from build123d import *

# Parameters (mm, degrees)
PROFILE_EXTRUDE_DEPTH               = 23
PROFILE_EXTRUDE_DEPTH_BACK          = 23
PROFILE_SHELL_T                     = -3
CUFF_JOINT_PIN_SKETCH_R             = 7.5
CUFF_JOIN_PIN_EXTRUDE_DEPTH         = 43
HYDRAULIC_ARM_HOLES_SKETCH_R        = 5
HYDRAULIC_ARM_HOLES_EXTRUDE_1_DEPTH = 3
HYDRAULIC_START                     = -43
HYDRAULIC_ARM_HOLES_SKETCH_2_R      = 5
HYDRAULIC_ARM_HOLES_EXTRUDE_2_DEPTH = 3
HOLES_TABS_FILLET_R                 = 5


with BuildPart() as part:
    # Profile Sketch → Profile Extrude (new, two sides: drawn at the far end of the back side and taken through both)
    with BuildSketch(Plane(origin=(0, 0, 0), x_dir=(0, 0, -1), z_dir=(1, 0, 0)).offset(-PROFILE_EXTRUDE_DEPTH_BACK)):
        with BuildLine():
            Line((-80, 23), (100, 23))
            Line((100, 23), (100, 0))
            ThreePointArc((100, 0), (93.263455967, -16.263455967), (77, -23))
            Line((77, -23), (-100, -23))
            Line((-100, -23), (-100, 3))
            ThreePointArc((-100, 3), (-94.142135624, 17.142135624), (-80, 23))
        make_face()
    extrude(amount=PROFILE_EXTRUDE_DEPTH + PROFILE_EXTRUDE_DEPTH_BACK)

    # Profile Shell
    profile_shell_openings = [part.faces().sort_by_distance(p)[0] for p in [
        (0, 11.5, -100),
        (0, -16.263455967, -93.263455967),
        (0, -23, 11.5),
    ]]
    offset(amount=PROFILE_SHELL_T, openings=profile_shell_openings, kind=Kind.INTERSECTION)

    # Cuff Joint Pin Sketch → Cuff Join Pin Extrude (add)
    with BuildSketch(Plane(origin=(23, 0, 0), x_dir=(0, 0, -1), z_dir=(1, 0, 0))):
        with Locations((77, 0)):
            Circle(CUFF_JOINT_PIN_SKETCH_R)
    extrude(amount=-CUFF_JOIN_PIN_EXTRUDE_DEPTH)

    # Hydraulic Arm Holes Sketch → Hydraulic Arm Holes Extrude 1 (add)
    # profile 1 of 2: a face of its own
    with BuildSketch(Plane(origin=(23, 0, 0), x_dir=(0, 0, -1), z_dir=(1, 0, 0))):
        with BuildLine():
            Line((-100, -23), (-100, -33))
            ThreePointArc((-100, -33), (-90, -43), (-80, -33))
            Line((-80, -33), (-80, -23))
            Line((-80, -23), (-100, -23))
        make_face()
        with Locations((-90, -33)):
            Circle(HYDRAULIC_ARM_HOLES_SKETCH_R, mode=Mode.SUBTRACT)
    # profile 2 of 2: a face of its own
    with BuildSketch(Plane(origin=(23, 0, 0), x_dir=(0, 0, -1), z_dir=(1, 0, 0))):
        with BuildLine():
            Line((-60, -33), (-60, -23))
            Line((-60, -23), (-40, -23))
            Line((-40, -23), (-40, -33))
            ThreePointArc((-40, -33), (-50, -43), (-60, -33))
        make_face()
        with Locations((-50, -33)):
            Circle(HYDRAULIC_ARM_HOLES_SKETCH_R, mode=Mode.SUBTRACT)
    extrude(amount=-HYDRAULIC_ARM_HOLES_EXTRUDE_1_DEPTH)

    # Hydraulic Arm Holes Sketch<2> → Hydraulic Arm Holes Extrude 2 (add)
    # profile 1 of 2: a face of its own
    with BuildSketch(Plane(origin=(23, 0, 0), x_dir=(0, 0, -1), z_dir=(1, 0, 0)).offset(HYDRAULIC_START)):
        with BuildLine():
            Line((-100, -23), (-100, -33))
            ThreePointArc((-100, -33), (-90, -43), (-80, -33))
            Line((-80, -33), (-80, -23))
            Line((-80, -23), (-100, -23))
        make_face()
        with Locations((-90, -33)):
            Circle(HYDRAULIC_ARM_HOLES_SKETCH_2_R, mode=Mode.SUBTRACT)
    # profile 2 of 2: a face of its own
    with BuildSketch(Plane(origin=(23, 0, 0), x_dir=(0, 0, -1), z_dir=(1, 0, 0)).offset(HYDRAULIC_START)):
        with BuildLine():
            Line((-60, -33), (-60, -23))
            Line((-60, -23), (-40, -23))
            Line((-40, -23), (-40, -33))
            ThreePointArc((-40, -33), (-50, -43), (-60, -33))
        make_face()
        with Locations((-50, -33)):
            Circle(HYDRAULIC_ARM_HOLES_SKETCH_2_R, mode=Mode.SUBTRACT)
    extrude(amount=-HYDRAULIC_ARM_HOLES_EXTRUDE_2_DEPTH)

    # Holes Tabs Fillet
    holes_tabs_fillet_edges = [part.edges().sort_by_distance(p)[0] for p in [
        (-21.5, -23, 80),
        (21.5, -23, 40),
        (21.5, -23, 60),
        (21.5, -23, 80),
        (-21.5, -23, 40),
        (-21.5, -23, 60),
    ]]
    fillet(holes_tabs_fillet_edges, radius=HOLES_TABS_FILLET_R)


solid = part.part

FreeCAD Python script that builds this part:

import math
import FreeCAD as App
import Part
import Sketcher


def edges_at(feature, points):
    """Names of the edges that pass closest to the given points."""
    edges = feature.Shape.Edges
    near = lambda p: min(range(len(edges)), key=lambda i: edges[i].distToShape(Part.Vertex(*p))[0])
    return sorted({f"Edge{near(p) + 1}" for p in points})


def faces_at(feature, points):
    """Names of the faces that lie closest to the given points."""
    faces = feature.Shape.Faces
    near = lambda p: min(range(len(faces)), key=lambda i: faces[i].distToShape(Part.Vertex(*p))[0])
    return sorted({f"Face{near(p) + 1}" for p in points})

doc = App.newDocument("Part")
params = doc.addObject("Spreadsheet::Sheet", "Params")
for row, (alias, value) in enumerate([
    ("sketch1_radius", "20 mm"),
    ("sketch1_radius2", "23 mm"),
    ("sketch1_height", "180 mm"),
    ("pad1_length", "23 mm"),
    ("pad1_length2", "23 mm"),
    ("thickness_wall", "3 mm"),
    ("sketch2_diameter", "15 mm"),
    ("pad2_length", "43 mm"),
    ("sketch3_diameter", "10 mm"),
    ("sketch3_radius", "10 mm"),
    ("sketch3_width", "10 mm"),
    ("pad3_length", "3 mm"),
    ("sketch4_diameter", "10 mm"),
    ("sketch4_radius", "10 mm"),
    ("sketch4_width", "10 mm"),
    ("pad4_length", "3 mm"),
    ("fillet_radius", "5 mm"),
], start=1):
    params.set(f"A{row}", alias)
    params.set(f"B{row}", "=" + value)
    params.setAlias(f"B{row}", alias)

body = doc.addObject("PartDesign::Body", "Body")

sketch1 = body.newObject("Sketcher::SketchObject", "Sketch")
sketch1.AttachmentSupport = (doc.getObject("YZ_Plane"), [""])
sketch1.MapMode = "FlatFace"
sketch1.addGeometry([
    Part.LineSegment(App.Vector(23, -100, 0), App.Vector(23, 80, 0)),
    Part.ArcOfCircle(Part.Circle(App.Vector(3, 80, 0), App.Vector(0, 0, 1), 20), math.radians(0), math.radians(90)),
    Part.LineSegment(App.Vector(3, 100, 0), App.Vector(-23, 100, 0)),
    Part.LineSegment(App.Vector(-23, 100, 0), App.Vector(-23, -77, 0)),
    Part.ArcOfCircle(Part.Circle(App.Vector(0, -77, 0), App.Vector(0, 0, 1), 23), math.radians(-180), math.radians(-90)),
    Part.LineSegment(App.Vector(0, -100, 0), App.Vector(23, -100, 0)),
], False)
sketch1.addConstraint([
    Sketcher.Constraint("Tangent", 0, 2, 1, 1),
    Sketcher.Constraint("Tangent", 1, 2, 2, 1),
    Sketcher.Constraint("Coincident", 2, 2, 3, 1),
    Sketcher.Constraint("Tangent", 3, 2, 4, 1),
    Sketcher.Constraint("Tangent", 4, 2, 5, 1),
    Sketcher.Constraint("Coincident", 5, 2, 0, 1),
    Sketcher.Constraint("Vertical", 0),
    Sketcher.Constraint("Horizontal", 2),
    Sketcher.Constraint("Vertical", 3),
    Sketcher.Constraint("Horizontal", 5),
    Sketcher.Constraint("Symmetric", 2, 2, 5, 2, -1, 1),
    Sketcher.Constraint("PointOnObject", 4, 3, -2),
    Sketcher.Constraint("Radius", 1, 20.0),
    Sketcher.Constraint("Radius", 4, 23.0),
    Sketcher.Constraint("DistanceY", 0, 1, 0, 2, 180.0),
])
sketch1.setExpression("Constraints[12]", "Params.sketch1_radius")
sketch1.setExpression("Constraints[13]", "Params.sketch1_radius2")
sketch1.setExpression("Constraints[14]", "Params.sketch1_height")
pad1 = body.newObject("PartDesign::Pad", "Pad")
pad1.Profile = sketch1
pad1.Type = "TwoLengths"
pad1.setExpression("Length", "Params.pad1_length")
pad1.setExpression("Length2", "Params.pad1_length2")
doc.recompute()

thickness = body.newObject("PartDesign::Thickness", "Thickness")
thickness.Base = (pad1, faces_at(pad1, [(0, 11.5, -100), (0, -16.263, -93.263), (0, -23, 11.5)]))
thickness.setExpression("Value", "Params.thickness_wall")
thickness.Reversed = True
thickness.Join = "Intersection"

sketch2 = body.newObject("Sketcher::SketchObject", "Sketch001")
sketch2.AttachmentSupport = (doc.getObject("YZ_Plane"), [""])
sketch2.MapMode = "FlatFace"
sketch2.AttachmentOffset = App.Placement(App.Vector(0, 0, 23), App.Rotation())
sketch2.addGeometry(Part.Circle(App.Vector(0, -77, 0), App.Vector(0, 0, 1), 8), False)
sketch2.addConstraint([
    Sketcher.Constraint("PointOnObject", 0, 3, -2),
    Sketcher.Constraint("Diameter", 0, 15.0),
    Sketcher.Constraint("DistanceY", 0, 3, -1, 1, 77.0),
])
sketch2.setExpression("Constraints[1]", "Params.sketch2_diameter")
pad2 = body.newObject("PartDesign::Pad", "Pad001")
pad2.Profile = sketch2
pad2.setExpression("Length", "Params.pad2_length")
pad2.Reversed = True

sketch3 = body.newObject("Sketcher::SketchObject", "Sketch002")
sketch3.AttachmentSupport = (doc.getObject("YZ_Plane"), [""])
sketch3.MapMode = "FlatFace"
sketch3.AttachmentOffset = App.Placement(App.Vector(0, 0, 23), App.Rotation())
sketch3.addGeometry([
    Part.LineSegment(App.Vector(-23, 100, 0), App.Vector(-33, 100, 0)),
    Part.ArcOfCircle(Part.Circle(App.Vector(-33, 90, 0), App.Vector(0, 0, 1), 10), math.radians(90), math.radians(270)),
    Part.LineSegment(App.Vector(-33, 80, 0), App.Vector(-23, 80, 0)),
    Part.LineSegment(App.Vector(-23, 80, 0), App.Vector(-23, 100, 0)),
    Part.Circle(App.Vector(-33, 90, 0), App.Vector(0, 0, 1), 5),
    Part.LineSegment(App.Vector(-23, 60, 0), App.Vector(-33, 60, 0)),
    Part.ArcOfCircle(Part.Circle(App.Vector(-33, 50, 0), App.Vector(0, 0, 1), 10), math.radians(90), math.radians(270)),
    Part.LineSegment(App.Vector(-33, 40, 0), App.Vector(-23, 40, 0)),
    Part.LineSegment(App.Vector(-23, 40, 0), App.Vector(-23, 60, 0)),
    Part.Circle(App.Vector(-33, 50, 0), App.Vector(0, 0, 1), 5),
], False)
sketch3.addConstraint([
    Sketcher.Constraint("Tangent", 0, 2, 1, 1),
    Sketcher.Constraint("Tangent", 1, 2, 2, 1),
    Sketcher.Constraint("Coincident", 2, 2, 3, 1),
    Sketcher.Constraint("Coincident", 3, 2, 0, 1),
    Sketcher.Constraint("Tangent", 5, 2, 6, 1),
    Sketcher.Constraint("Tangent", 6, 2, 7, 1),
    Sketcher.Constraint("Coincident", 7, 2, 8, 1),
    Sketcher.Constraint("Coincident", 8, 2, 5, 1),
    Sketcher.Constraint("Horizontal", 0),
    Sketcher.Constraint("Horizontal", 2),
    Sketcher.Constraint("Vertical", 3),
    Sketcher.Constraint("Horizontal", 5),
    Sketcher.Constraint("Horizontal", 7),
    Sketcher.Constraint("Vertical", 8),
    Sketcher.Constraint("Coincident", 4, 3, 1, 3),
    Sketcher.Constraint("Coincident", 9, 3, 6, 3),
    Sketcher.Constraint("Equal", 1, 6),
    Sketcher.Constraint("Equal", 4, 9),
    Sketcher.Constraint("Vertical", 4, 3, 6, 3),
    Sketcher.Constraint("Vertical", 3, 2, 7, 2),
    Sketcher.Constraint("Diameter", 4, 10.0),
    Sketcher.Constraint("Radius", 1, 10.0),
    Sketcher.Constraint("DistanceX", 0, 2, 0, 1, 10.0),
    Sketcher.Constraint("DistanceX", 1, 3, -1, 1, 33.0),
    Sketcher.Constraint("DistanceY", -1, 1, 1, 3, 90.0),
    Sketcher.Constraint("DistanceY", -1, 1, 6, 3, 50.0),
])
sketch3.setExpression("Constraints[20]", "Params.sketch3_diameter")
sketch3.setExpression("Constraints[21]", "Params.sketch3_radius")
sketch3.setExpression("Constraints[22]", "Params.sketch3_width")
pad3 = body.newObject("PartDesign::Pad", "Pad002")
pad3.Profile = sketch3
pad3.setExpression("Length", "Params.pad3_length")
pad3.Reversed = True

sketch4 = body.newObject("Sketcher::SketchObject", "Sketch003")
sketch4.AttachmentSupport = (doc.getObject("YZ_Plane"), [""])
sketch4.MapMode = "FlatFace"
sketch4.AttachmentOffset = App.Placement(App.Vector(0, 0, -20), App.Rotation())
sketch4.addGeometry([
    Part.LineSegment(App.Vector(-23, 100, 0), App.Vector(-33, 100, 0)),
    Part.ArcOfCircle(Part.Circle(App.Vector(-33, 90, 0), App.Vector(0, 0, 1), 10), math.radians(90), math.radians(270)),
    Part.LineSegment(App.Vector(-33, 80, 0), App.Vector(-23, 80, 0)),
    Part.LineSegment(App.Vector(-23, 80, 0), App.Vector(-23, 100, 0)),
    Part.Circle(App.Vector(-33, 90, 0), App.Vector(0, 0, 1), 5),
    Part.LineSegment(App.Vector(-23, 60, 0), App.Vector(-33, 60, 0)),
    Part.ArcOfCircle(Part.Circle(App.Vector(-33, 50, 0), App.Vector(0, 0, 1), 10), math.radians(90), math.radians(270)),
    Part.LineSegment(App.Vector(-33, 40, 0), App.Vector(-23, 40, 0)),
    Part.LineSegment(App.Vector(-23, 40, 0), App.Vector(-23, 60, 0)),
    Part.Circle(App.Vector(-33, 50, 0), App.Vector(0, 0, 1), 5),
], False)
sketch4.addConstraint([
    Sketcher.Constraint("Tangent", 0, 2, 1, 1),
    Sketcher.Constraint("Tangent", 1, 2, 2, 1),
    Sketcher.Constraint("Coincident", 2, 2, 3, 1),
    Sketcher.Constraint("Coincident", 3, 2, 0, 1),
    Sketcher.Constraint("Tangent", 5, 2, 6, 1),
    Sketcher.Constraint("Tangent", 6, 2, 7, 1),
    Sketcher.Constraint("Coincident", 7, 2, 8, 1),
    Sketcher.Constraint("Coincident", 8, 2, 5, 1),
    Sketcher.Constraint("Horizontal", 0),
    Sketcher.Constraint("Horizontal", 2),
    Sketcher.Constraint("Vertical", 3),
    Sketcher.Constraint("Horizontal", 5),
    Sketcher.Constraint("Horizontal", 7),
    Sketcher.Constraint("Vertical", 8),
    Sketcher.Constraint("Coincident", 4, 3, 1, 3),
    Sketcher.Constraint("Coincident", 9, 3, 6, 3),
    Sketcher.Constraint("Equal", 1, 6),
    Sketcher.Constraint("Equal", 4, 9),
    Sketcher.Constraint("Vertical", 4, 3, 6, 3),
    Sketcher.Constraint("Vertical", 3, 2, 7, 2),
    Sketcher.Constraint("Diameter", 4, 10.0),
    Sketcher.Constraint("Radius", 1, 10.0),
    Sketcher.Constraint("DistanceX", 0, 2, 0, 1, 10.0),
    Sketcher.Constraint("DistanceX", 1, 3, -1, 1, 33.0),
    Sketcher.Constraint("DistanceY", -1, 1, 1, 3, 90.0),
    Sketcher.Constraint("DistanceY", -1, 1, 6, 3, 50.0),
])
sketch4.setExpression("Constraints[20]", "Params.sketch4_diameter")
sketch4.setExpression("Constraints[21]", "Params.sketch4_radius")
sketch4.setExpression("Constraints[22]", "Params.sketch4_width")
pad4 = body.newObject("PartDesign::Pad", "Pad003")
pad4.Profile = sketch4
pad4.setExpression("Length", "Params.pad4_length")
pad4.Reversed = True
doc.recompute()

fillet = body.newObject("PartDesign::Fillet", "Fillet")
fillet.Base = (pad4, edges_at(pad4, [
    (-21.5, -23, 80),
    (21.5, -23, 40),
    (21.5, -23, 60),
    (21.5, -23, 80),
    (-21.5, -23, 40),
    (-21.5, -23, 60),
]))
fillet.setExpression("Radius", "Params.fillet_radius")

doc.recompute()
